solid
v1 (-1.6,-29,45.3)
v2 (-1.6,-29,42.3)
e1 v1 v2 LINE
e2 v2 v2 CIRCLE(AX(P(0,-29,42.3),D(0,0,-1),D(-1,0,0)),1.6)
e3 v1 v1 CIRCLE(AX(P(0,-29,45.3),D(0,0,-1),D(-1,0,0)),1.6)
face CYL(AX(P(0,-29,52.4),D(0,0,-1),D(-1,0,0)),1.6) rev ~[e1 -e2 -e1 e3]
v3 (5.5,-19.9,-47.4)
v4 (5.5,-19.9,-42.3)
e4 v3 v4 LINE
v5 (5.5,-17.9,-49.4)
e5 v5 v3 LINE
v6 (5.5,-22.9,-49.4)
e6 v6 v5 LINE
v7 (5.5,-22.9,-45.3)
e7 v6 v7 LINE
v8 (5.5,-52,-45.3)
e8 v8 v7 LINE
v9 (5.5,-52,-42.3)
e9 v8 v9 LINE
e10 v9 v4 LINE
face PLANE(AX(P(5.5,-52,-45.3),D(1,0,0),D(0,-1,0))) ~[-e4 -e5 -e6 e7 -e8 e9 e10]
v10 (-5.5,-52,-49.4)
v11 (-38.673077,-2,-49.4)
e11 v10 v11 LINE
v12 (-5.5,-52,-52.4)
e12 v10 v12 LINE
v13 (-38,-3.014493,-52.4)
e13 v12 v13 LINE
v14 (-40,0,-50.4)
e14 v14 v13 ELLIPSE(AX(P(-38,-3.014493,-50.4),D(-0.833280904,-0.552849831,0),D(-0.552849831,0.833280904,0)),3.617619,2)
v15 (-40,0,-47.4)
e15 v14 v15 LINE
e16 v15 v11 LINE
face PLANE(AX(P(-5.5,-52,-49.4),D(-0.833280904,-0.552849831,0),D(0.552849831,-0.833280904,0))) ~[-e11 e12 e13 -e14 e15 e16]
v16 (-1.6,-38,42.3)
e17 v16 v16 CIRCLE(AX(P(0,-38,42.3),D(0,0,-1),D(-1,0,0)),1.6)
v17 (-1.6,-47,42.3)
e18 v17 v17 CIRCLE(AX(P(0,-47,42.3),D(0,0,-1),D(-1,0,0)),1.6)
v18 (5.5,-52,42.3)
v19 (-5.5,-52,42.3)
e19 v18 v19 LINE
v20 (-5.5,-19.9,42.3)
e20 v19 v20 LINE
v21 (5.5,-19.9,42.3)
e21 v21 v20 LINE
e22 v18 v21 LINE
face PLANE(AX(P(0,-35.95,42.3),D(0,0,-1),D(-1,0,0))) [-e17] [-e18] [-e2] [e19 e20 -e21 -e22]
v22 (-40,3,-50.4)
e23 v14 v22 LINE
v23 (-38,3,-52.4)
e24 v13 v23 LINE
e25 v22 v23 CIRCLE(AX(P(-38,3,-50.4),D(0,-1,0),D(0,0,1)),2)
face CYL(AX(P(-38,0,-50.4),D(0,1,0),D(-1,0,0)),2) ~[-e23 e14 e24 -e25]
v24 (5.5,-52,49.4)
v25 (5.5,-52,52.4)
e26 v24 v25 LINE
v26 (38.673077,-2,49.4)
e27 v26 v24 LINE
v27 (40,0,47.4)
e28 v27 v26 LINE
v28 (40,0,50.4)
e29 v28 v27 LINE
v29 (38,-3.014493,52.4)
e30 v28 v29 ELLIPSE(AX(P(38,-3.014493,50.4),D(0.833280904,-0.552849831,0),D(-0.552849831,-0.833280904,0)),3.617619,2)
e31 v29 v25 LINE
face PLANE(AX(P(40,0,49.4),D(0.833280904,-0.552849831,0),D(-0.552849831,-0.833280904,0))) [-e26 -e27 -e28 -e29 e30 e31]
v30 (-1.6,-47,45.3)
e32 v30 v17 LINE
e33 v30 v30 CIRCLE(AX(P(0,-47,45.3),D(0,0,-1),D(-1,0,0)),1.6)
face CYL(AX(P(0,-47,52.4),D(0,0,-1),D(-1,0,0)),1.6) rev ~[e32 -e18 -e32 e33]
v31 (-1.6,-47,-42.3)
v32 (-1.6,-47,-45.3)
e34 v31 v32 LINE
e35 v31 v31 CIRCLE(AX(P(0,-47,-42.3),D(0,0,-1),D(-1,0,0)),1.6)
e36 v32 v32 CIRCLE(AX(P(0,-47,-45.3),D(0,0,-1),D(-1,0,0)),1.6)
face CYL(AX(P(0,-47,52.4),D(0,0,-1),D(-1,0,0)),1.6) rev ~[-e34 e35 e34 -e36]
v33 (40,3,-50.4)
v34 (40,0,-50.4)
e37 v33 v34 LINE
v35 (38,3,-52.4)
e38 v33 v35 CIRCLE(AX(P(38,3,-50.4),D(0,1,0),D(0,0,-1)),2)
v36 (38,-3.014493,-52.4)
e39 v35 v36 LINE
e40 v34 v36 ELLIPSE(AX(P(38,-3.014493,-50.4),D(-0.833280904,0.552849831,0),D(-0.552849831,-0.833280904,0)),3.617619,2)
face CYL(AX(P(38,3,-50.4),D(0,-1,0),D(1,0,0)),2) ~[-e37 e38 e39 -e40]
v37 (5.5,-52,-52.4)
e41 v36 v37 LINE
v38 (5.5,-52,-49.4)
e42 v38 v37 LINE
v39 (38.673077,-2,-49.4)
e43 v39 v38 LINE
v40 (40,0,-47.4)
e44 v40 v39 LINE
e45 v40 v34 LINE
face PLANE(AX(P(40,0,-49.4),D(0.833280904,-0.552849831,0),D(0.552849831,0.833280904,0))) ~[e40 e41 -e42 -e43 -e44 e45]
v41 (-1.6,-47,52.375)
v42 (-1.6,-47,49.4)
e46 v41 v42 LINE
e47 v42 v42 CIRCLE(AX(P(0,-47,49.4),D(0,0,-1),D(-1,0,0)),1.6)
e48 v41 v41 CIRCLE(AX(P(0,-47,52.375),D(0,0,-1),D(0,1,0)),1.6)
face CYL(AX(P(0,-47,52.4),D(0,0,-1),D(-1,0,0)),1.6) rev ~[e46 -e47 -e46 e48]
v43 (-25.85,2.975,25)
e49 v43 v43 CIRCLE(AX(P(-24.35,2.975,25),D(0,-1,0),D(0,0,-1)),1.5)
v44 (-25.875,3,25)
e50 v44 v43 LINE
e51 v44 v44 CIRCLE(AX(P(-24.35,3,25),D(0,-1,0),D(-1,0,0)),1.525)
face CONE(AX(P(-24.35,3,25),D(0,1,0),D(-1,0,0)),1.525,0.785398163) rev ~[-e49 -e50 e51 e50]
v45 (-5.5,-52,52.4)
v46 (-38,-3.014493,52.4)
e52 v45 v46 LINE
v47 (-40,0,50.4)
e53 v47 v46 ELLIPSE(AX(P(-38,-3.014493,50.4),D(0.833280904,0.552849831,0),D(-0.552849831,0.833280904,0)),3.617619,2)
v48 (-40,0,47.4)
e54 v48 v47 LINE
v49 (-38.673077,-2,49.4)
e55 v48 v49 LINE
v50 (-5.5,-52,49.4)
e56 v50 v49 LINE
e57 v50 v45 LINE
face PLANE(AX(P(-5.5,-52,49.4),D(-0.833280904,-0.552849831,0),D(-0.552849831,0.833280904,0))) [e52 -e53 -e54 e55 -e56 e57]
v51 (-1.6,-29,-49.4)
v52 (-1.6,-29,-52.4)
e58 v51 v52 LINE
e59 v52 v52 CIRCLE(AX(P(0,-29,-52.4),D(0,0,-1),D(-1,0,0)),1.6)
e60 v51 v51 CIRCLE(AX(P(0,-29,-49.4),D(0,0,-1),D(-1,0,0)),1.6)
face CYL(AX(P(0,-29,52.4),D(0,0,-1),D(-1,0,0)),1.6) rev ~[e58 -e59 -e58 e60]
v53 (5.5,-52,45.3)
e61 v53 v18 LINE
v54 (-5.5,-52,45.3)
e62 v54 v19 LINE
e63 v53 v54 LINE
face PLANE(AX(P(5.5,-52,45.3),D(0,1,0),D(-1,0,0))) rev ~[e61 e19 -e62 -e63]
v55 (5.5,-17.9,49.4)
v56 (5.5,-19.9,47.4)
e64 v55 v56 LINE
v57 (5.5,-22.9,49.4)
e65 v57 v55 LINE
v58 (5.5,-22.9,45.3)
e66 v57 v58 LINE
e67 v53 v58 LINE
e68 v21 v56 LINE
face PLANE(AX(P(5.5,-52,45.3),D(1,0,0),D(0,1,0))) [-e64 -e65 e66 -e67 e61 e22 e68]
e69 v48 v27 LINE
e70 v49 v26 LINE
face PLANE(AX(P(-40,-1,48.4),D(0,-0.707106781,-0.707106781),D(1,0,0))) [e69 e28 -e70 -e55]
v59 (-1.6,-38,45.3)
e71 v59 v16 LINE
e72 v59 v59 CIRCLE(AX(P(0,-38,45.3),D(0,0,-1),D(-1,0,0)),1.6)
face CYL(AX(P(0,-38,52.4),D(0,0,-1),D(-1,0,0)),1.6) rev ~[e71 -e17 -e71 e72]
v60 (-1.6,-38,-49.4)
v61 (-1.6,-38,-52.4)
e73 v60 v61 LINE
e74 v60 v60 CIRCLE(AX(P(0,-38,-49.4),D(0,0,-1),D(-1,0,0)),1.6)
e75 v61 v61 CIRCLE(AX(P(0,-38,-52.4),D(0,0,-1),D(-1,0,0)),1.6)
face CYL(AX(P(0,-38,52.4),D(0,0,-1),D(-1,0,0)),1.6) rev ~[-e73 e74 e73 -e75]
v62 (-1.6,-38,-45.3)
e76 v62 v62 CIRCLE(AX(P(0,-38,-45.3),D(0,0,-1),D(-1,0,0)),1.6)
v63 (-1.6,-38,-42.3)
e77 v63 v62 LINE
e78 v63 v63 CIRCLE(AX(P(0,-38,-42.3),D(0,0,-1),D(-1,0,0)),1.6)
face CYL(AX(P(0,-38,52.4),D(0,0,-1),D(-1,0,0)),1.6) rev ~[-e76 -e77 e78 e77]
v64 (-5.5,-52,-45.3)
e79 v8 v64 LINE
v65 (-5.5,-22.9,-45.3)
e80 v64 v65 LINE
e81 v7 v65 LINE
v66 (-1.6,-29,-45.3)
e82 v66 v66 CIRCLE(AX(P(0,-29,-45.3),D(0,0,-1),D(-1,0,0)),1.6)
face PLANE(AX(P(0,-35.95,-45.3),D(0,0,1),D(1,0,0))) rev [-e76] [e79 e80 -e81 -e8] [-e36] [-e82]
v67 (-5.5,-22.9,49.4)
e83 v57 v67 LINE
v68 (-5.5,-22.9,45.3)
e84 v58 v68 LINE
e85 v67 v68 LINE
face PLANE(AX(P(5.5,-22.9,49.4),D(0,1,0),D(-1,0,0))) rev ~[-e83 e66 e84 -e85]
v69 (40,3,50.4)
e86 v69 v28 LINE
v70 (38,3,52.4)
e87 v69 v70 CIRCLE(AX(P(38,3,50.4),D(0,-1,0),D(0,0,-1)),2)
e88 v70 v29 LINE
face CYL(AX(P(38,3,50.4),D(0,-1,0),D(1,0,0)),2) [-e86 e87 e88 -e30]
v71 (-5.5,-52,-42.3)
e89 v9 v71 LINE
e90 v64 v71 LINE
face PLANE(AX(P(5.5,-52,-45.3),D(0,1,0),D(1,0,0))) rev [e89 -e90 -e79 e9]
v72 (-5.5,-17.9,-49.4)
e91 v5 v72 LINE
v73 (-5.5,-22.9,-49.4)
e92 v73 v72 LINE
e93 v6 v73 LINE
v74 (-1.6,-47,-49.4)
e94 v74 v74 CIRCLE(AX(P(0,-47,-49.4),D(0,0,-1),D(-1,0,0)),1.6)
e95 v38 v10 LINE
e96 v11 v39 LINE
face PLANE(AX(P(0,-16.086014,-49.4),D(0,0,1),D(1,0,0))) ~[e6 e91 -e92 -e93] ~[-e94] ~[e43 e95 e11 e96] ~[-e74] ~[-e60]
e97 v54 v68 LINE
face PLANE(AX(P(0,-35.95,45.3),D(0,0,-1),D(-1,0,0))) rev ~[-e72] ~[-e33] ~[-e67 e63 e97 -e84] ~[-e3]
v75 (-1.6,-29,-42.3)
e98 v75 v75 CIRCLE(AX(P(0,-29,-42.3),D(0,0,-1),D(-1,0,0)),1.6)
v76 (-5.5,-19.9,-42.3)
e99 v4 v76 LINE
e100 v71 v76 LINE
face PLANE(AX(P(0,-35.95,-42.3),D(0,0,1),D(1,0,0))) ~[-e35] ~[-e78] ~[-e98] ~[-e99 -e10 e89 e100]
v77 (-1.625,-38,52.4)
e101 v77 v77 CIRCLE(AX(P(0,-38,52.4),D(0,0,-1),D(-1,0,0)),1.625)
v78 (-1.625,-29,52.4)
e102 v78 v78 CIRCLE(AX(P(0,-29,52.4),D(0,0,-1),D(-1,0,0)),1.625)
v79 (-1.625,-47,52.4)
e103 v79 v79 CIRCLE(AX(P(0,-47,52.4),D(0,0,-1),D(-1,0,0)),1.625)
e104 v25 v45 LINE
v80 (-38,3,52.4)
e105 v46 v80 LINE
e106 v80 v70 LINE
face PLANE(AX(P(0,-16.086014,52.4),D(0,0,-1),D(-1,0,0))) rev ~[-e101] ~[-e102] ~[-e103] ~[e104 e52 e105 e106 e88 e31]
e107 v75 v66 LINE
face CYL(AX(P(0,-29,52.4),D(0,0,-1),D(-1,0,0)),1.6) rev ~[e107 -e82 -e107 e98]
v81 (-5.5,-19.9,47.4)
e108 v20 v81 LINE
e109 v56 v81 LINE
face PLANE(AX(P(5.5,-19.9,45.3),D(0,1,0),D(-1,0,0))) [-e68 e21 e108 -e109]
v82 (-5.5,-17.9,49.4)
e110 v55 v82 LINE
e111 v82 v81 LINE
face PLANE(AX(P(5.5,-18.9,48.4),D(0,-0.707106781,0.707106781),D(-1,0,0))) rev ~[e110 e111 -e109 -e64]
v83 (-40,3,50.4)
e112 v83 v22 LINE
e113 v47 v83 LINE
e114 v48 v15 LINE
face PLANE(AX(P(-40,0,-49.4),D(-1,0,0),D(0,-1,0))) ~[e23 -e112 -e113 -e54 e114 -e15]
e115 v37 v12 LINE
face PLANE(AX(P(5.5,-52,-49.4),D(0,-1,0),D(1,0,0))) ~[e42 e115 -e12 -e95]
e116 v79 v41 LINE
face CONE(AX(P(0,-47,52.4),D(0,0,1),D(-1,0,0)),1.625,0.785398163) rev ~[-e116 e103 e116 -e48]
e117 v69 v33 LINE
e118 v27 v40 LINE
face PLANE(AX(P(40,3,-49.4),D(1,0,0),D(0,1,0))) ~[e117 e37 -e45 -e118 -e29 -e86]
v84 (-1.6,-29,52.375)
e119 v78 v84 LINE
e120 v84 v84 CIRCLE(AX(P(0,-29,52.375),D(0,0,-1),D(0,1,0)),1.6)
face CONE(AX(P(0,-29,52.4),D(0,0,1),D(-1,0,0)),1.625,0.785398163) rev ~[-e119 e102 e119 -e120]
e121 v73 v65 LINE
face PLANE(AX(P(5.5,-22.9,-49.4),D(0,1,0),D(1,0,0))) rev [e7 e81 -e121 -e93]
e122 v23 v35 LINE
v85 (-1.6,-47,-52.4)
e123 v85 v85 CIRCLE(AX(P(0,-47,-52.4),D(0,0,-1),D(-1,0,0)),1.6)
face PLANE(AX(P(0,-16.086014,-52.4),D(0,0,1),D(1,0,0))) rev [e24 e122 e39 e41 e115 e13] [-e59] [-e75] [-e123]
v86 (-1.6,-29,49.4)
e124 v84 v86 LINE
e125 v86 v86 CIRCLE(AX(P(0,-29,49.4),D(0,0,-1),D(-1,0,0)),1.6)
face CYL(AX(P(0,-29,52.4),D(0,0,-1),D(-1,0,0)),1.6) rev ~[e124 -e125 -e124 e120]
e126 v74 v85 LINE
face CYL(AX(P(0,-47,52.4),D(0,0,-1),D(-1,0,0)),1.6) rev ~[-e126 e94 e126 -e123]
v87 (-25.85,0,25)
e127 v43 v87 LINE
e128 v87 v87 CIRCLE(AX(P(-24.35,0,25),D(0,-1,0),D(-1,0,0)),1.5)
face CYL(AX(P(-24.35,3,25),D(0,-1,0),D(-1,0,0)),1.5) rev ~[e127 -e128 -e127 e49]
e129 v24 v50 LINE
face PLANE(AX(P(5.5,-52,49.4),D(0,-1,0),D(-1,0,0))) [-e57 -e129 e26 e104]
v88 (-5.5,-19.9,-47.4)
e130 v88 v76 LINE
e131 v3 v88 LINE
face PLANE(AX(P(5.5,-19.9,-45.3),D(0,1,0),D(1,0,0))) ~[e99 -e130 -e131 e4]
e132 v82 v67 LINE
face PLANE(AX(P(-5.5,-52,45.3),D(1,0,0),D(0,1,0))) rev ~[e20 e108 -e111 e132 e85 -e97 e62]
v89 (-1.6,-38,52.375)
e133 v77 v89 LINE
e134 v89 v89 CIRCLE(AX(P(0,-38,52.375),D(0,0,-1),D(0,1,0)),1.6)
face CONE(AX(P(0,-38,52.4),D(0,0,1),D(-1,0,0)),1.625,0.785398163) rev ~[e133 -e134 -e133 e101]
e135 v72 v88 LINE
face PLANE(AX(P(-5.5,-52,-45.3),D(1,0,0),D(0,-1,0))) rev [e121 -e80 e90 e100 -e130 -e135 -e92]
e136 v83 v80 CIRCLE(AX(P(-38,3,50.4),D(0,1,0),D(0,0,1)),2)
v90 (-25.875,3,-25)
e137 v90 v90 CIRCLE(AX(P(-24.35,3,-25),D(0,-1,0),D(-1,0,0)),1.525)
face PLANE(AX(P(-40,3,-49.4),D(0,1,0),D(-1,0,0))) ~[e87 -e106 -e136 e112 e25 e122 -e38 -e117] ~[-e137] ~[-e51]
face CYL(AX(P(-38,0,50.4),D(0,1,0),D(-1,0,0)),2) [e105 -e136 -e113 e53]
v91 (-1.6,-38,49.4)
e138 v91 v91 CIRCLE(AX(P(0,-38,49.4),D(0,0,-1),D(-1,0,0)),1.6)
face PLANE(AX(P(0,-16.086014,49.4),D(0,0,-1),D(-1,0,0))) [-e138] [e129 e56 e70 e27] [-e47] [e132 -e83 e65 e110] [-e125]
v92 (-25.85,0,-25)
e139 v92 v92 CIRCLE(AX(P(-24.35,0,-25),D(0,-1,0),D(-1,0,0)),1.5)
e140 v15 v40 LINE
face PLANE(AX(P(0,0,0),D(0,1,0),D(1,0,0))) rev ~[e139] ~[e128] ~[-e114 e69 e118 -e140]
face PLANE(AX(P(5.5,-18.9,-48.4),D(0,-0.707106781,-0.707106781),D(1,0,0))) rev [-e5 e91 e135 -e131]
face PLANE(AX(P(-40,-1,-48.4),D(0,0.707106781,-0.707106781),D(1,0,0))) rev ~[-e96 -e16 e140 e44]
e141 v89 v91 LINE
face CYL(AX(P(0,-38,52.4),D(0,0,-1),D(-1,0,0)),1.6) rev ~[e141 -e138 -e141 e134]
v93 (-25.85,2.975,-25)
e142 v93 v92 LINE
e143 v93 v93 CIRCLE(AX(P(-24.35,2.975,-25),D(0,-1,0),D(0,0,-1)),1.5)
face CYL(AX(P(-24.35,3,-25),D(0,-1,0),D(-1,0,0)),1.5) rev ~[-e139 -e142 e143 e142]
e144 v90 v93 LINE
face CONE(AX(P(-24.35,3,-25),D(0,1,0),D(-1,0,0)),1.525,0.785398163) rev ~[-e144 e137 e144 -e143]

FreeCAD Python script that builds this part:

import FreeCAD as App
import Part
import Sketcher
Q = App.Units.Quantity


def edges_at(feature, points):
    """Names of the edges that pass closest to the given points."""
    edges = feature.Shape.Edges
    near = lambda p: min(range(len(edges)), key=lambda i: edges[i].distToShape(Part.Vertex(*p))[0])
    return sorted({f"Edge{near(p) + 1}" for p in points})


def add_polygon(sketch, points):
    """Adds a closed chain of lines whose ends are joined by coincident constraints."""
    first, n = sketch.GeometryCount, len(points)
    for a, b in zip(points, points[1:] + points[:1]):
        sketch.addGeometry(Part.LineSegment(App.Vector(*a, 0), App.Vector(*b, 0)), False)
    for i in range(n):
        sketch.addConstraint(Sketcher.Constraint("Coincident", first + i, 2, first + (i + 1) % n, 1))

doc = App.newDocument("Part")
body = doc.addObject("PartDesign::Body", "Body")

# Sketch on XZ plane
sketch1 = doc.addObject("Sketcher::SketchObject", "Sketch")
body.addObject(sketch1)
sketch1.AttachmentSupport = (doc.XZ_Plane, [""])
sketch1.MapMode = "FlatFace"
add_polygon(sketch1, [(-40, -49.4), (-40, 49.4), (40, 49.4), (40, -49.4)])  # lines 0-3
sketch1.addConstraint(Sketcher.Constraint("Vertical", 0))
sketch1.addConstraint(Sketcher.Constraint("Horizontal", 1))
sketch1.addConstraint(Sketcher.Constraint("Vertical", 2))
sketch1.addConstraint(Sketcher.Constraint("Horizontal", 3))
sketch1.addConstraint(Sketcher.Constraint("Symmetric", 0, 2, 2, 2, -1, 1))
sketch1.addConstraint(Sketcher.Constraint("DistanceX", 1, 1, 1, 2, Q("80 mm")))
sketch1.addConstraint(Sketcher.Constraint("DistanceY", 0, 1, 0, 2, Q("98.8 mm")))
pad1 = doc.addObject("PartDesign::Pad", "Pad")
body.addObject(pad1)
pad1.Profile = sketch1
pad1.Length = 3
pad1.Reversed = True

# Sketch on XY plane
sketch2 = doc.addObject("Sketcher::SketchObject", "Sketch001")
body.addObject(sketch2)
sketch2.AttachmentSupport = (doc.XY_Plane, [""])
sketch2.MapMode = "FlatFace"
sketch2.AttachmentOffset = App.Placement(App.Vector(0, 0, 49.4), App.Rotation())
add_polygon(sketch2, [(-40, 3), (-40, 0), (-5.5, -52), (5.5, -52), (40, 0), (40, 3)])  # lines 0-5
sketch2.addConstraint(Sketcher.Constraint("Vertical", 0))
sketch2.addConstraint(Sketcher.Constraint("Horizontal", 2))
sketch2.addConstraint(Sketcher.Constraint("Vertical", 4))
sketch2.addConstraint(Sketcher.Constraint("Horizontal", 5))
sketch2.addConstraint(Sketcher.Constraint("Symmetric", 0, 2, 3, 2, -1, 1))
sketch2.addConstraint(Sketcher.Constraint("PointOnObject", 0, 2, -1))
sketch2.addConstraint(Sketcher.Constraint("Equal", 1, 3))
sketch2.addConstraint(Sketcher.Constraint("DistanceX", 2, 1, 2, 2, Q("11 mm")))
sketch2.addConstraint(Sketcher.Constraint("DistanceX", 5, 2, 5, 1, Q("80 mm")))
sketch2.addConstraint(Sketcher.Constraint("DistanceY", 0, 2, 0, 1, Q("3 mm")))
sketch2.addConstraint(Sketcher.Constraint("DistanceY", 1, 2, -1, 1, Q("52 mm")))
pad2 = doc.addObject("PartDesign::Pad", "Pad001")
body.addObject(pad2)
pad2.Profile = sketch2
pad2.Length = 3
doc.recompute()

mirrored = doc.addObject("PartDesign::Mirrored", "Mirrored")
body.addObject(mirrored)
mirrored.Originals = [pad2]
mirrored.MirrorPlane = (doc.XY_Plane, [""])
body.Tip = mirrored
doc.recompute()

chamfer = doc.addObject("PartDesign::Chamfer", "Chamfer")
body.addObject(chamfer)
chamfer.Base = (mirrored, edges_at(mirrored, [(0, 0, 49.4), (0, 0, -49.4)]))
chamfer.Size = 2
doc.recompute()

fillet = doc.addObject("PartDesign::Fillet", "Fillet")
body.addObject(fillet)
fillet.Base = (chamfer, edges_at(chamfer, [
    (40, 1.5, 52.4),
    (-40, 1.5, 52.4),
    (-40, 1.5, -52.4),
    (40, 1.5, -52.4),
]))
fillet.Radius = 2

# Sketch on XY plane
sketch3 = doc.addObject("Sketcher::SketchObject", "Sketch002")
body.addObject(sketch3)
sketch3.AttachmentSupport = (doc.XY_Plane, [""])
sketch3.MapMode = "FlatFace"
sketch3.AttachmentOffset = App.Placement(App.Vector(0, 0, 49.4), App.Rotation())
add_polygon(sketch3, [(5.5, -19.9), (5.5, -22.9), (-5.5, -22.9), (-5.5, -19.9)])  # lines 0-3
sketch3.addConstraint(Sketcher.Constraint("Vertical", 0))
sketch3.addConstraint(Sketcher.Constraint("Horizontal", 1))
sketch3.addConstraint(Sketcher.Constraint("Vertical", 2))
sketch3.addConstraint(Sketcher.Constraint("Horizontal", 3))
sketch3.addConstraint(Sketcher.Constraint("DistanceX", 1, 2, 1, 1, Q("11 mm")))
sketch3.addConstraint(Sketcher.Constraint("DistanceY", 0, 2, 0, 1, Q("3 mm")))
sketch3.addConstraint(Sketcher.Constraint("DistanceX", -1, 1, 0, 2, Q("5.5 mm")))
sketch3.addConstraint(Sketcher.Constraint("DistanceY", 0, 2, -1, 1, Q("22.9 mm")))
pad3 = doc.addObject("PartDesign::Pad", "Pad002")
body.addObject(pad3)
pad3.Profile = sketch3
pad3.Length = 4.1
pad3.Reversed = True

# Sketch on XY plane
sketch4 = doc.addObject("Sketcher::SketchObject", "Sketch003")
body.addObject(sketch4)
sketch4.AttachmentSupport = (doc.XY_Plane, [""])
sketch4.MapMode = "FlatFace"
sketch4.AttachmentOffset = App.Placement(App.Vector(0, 0, 45.3), App.Rotation())
add_polygon(sketch4, [(5.5, -19.9), (5.5, -52), (-5.5, -52), (-5.5, -19.9)])  # lines 0-3
sketch4.addConstraint(Sketcher.Constraint("Vertical", 0))
sketch4.addConstraint(Sketcher.Constraint("Horizontal", 1))
sketch4.addConstraint(Sketcher.Constraint("Vertical", 2))
sketch4.addConstraint(Sketcher.Constraint("Horizontal", 3))
sketch4.addConstraint(Sketcher.Constraint("DistanceX", 1, 2, 1, 1, Q("11 mm")))
sketch4.addConstraint(Sketcher.Constraint("DistanceY", 0, 2, 0, 1, Q("32.1 mm")))
sketch4.addConstraint(Sketcher.Constraint("DistanceY", 0, 2, -1, 1, Q("52 mm")))
sketch4.addConstraint(Sketcher.Constraint("DistanceX", -1, 1, 0, 2, Q("5.5 mm")))
pad4 = doc.addObject("PartDesign::Pad", "Pad003")
body.addObject(pad4)
pad4.Profile = sketch4
pad4.Length = 3
pad4.Reversed = True
doc.recompute()

mirrored2 = doc.addObject("PartDesign::Mirrored", "Mirrored001")
body.addObject(mirrored2)
mirrored2.Originals = [pad3, pad4]
mirrored2.MirrorPlane = (doc.XY_Plane, [""])
body.Tip = mirrored2
doc.recompute()

chamfer2 = doc.addObject("PartDesign::Chamfer", "Chamfer001")
body.addObject(chamfer2)
chamfer2.Base = (mirrored2, edges_at(mirrored2, [(0, -19.9, 49.4), (0, -19.9, -49.4)]))
chamfer2.Size = 2

# Sketch on XY plane
sketch5 = doc.addObject("Sketcher::SketchObject", "Sketch004")
body.addObject(sketch5)
sketch5.AttachmentSupport = (doc.XY_Plane, [""])
sketch5.MapMode = "FlatFace"
sketch5.AttachmentOffset = App.Placement(App.Vector(0, 0, 52.4), App.Rotation())
sketch5.addGeometry(Part.Circle(App.Vector(0, -47, 0), App.Vector(0, 0, 1), 1.6), False)
sketch5.addGeometry(Part.Circle(App.Vector(0, -38, 0), App.Vector(0, 0, 1), 1.6), False)
sketch5.addGeometry(Part.Circle(App.Vector(0, -29, 0), App.Vector(0, 0, 1), 1.6), False)
sketch5.addConstraint(Sketcher.Constraint("Equal", 0, 1))
sketch5.addConstraint(Sketcher.Constraint("Equal", 1, 2))
sketch5.addConstraint(Sketcher.Constraint("PointOnObject", 0, 3, -2))
sketch5.addConstraint(Sketcher.Constraint("PointOnObject", 1, 3, -2))
sketch5.addConstraint(Sketcher.Constraint("PointOnObject", 2, 3, -2))
sketch5.addConstraint(Sketcher.Constraint("Diameter", 0, Q("3.2 mm")))
sketch5.addConstraint(Sketcher.Constraint("DistanceY", 0, 3, -1, 1, Q("47 mm")))
sketch5.addConstraint(Sketcher.Constraint("DistanceY", 1, 3, -1, 1, Q("38 mm")))
sketch5.addConstraint(Sketcher.Constraint("DistanceY", 2, 3, -1, 1, Q("29 mm")))
doc.recompute()
hole = doc.addObject("PartDesign::Hole", "Hole")
body.addObject(hole)
hole.Profile = sketch5
hole.ThreadType = "None"
hole.Diameter = 3.2
hole.DepthType = "ThroughAll"
hole.HoleCutType = "Countersink"
hole.HoleCutDiameter = 3.25
hole.HoleCutCountersinkAngle = 90

# Sketch on XZ plane
sketch6 = doc.addObject("Sketcher::SketchObject", "Sketch005")
body.addObject(sketch6)
sketch6.AttachmentSupport = (doc.XZ_Plane, [""])
sketch6.MapMode = "FlatFace"
sketch6.AttachmentOffset = App.Placement(App.Vector(0, 0, -3), App.Rotation())
sketch6.addGeometry(Part.Circle(App.Vector(-24.35, -25, 0), App.Vector(0, 0, 1), 1.5), False)
sketch6.addGeometry(Part.Circle(App.Vector(-24.35, 25, 0), App.Vector(0, 0, 1), 1.5), False)
sketch6.addConstraint(Sketcher.Constraint("Equal", 0, 1))
sketch6.addConstraint(Sketcher.Constraint("Symmetric", 0, 3, 1, 3, -1))
sketch6.addConstraint(Sketcher.Constraint("Diameter", 0, Q("3 mm")))
sketch6.addConstraint(Sketcher.Constraint("DistanceY", 0, 3, -1, 1, Q("25 mm")))
sketch6.addConstraint(Sketcher.Constraint("DistanceX", 0, 3, -1, 1, Q("24.35 mm")))
doc.recompute()
hole2 = doc.addObject("PartDesign::Hole", "Hole001")
body.addObject(hole2)
hole2.Profile = sketch6
hole2.ThreadType = "None"
hole2.Diameter = 3
hole2.DepthType = "Dimension"
hole2.Depth = 20
hole2.DrillPoint = "Angled"
hole2.DrillPointAngle = 118
hole2.HoleCutType = "Countersink"
hole2.HoleCutDiameter = 3.05
hole2.HoleCutCountersinkAngle = 90
hole2.Reversed = True

doc.recompute()
